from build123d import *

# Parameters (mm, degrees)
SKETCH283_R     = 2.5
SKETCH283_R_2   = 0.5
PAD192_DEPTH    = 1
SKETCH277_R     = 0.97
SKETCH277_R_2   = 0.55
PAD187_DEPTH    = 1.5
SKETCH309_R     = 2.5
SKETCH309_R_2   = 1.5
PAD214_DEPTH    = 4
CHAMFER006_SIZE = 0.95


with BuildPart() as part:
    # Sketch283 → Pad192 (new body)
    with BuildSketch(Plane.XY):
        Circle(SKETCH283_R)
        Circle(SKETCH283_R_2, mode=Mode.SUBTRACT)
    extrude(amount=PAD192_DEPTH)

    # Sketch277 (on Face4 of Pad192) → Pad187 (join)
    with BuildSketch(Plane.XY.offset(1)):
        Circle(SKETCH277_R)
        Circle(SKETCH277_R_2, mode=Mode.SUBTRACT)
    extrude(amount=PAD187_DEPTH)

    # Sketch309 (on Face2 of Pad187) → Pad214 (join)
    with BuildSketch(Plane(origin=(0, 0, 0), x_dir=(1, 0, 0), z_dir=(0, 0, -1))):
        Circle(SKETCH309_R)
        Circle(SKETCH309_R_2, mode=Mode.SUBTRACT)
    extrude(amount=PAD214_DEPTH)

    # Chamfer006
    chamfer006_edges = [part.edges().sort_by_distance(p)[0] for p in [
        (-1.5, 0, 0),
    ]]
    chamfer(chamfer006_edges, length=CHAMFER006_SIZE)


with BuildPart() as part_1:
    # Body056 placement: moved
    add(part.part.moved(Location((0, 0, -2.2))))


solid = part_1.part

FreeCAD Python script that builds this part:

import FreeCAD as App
import Part
import Sketcher
from FreeCAD import Vector


def edges_at(feature, points):
    """Names of the edges that pass closest to the given points."""
    edges = feature.Shape.Edges
    near = lambda p: min(range(len(edges)), key=lambda i: edges[i].distToShape(Part.Vertex(*p))[0])
    return sorted({f"Edge{near(p) + 1}" for p in points})

doc = App.newDocument("Part")
body = doc.addObject("PartDesign::Body", "Body")

sketch1 = body.newObject("Sketcher::SketchObject", "Sketch")
sketch1.AttachmentSupport = (doc.getObject("XY_Plane"), [""])
sketch1.MapMode = "FlatFace"
sketch1.addGeometry([
    Part.Circle(Vector(0, 0, 0), Vector(0, 0, 1), 2.5),
    Part.Circle(Vector(0, 0, 0), Vector(0, 0, 1), 0.5),
], False)
sketch1.addConstraint([
    Sketcher.Constraint("Coincident", 0, 3, -1, 1),
    Sketcher.Constraint("Coincident", 1, 3, -1, 1),
    Sketcher.Constraint("Diameter", 0, 5.0),
    Sketcher.Constraint("Diameter", 1, 1.0),
])
pad1 = body.newObject("PartDesign::Pad", "Pad")
pad1.Profile = sketch1
pad1.Length = 1

sketch2 = body.newObject("Sketcher::SketchObject", "Sketch001")
sketch2.AttachmentSupport = (doc.getObject("XY_Plane"), [""])
sketch2.MapMode = "FlatFace"
sketch2.AttachmentOffset = App.Placement(Vector(0, 0, 1), App.Rotation())
sketch2.addGeometry([
    Part.Circle(Vector(0, 0, 0), Vector(0, 0, 1), 0.97),
    Part.Circle(Vector(0, 0, 0), Vector(0, 0, 1), 0.55),
], False)
sketch2.addConstraint([
    Sketcher.Constraint("Coincident", 0, 3, -1, 1),
    Sketcher.Constraint("Coincident", 1, 3, -1, 1),
    Sketcher.Constraint("Diameter", 1, 1.1),
    Sketcher.Constraint("Diameter", 0, 1.94),
])
pad2 = body.newObject("PartDesign::Pad", "Pad001")
pad2.Profile = sketch2
pad2.Length = 1.5

sketch3 = body.newObject("Sketcher::SketchObject", "Sketch002")
sketch3.AttachmentSupport = (doc.getObject("XY_Plane"), [""])
sketch3.MapMode = "FlatFace"
sketch3.addGeometry([
    Part.Circle(Vector(0, 0, 0), Vector(0, 0, 1), 2.5),
    Part.Circle(Vector(0, 0, 0), Vector(0, 0, 1), 1.5),
], False)
sketch3.addConstraint([
    Sketcher.Constraint("Coincident", 0, 3, -1, 1),
    Sketcher.Constraint("Coincident", 1, 3, -1, 1),
    Sketcher.Constraint("Diameter", 0, 5.0),
    Sketcher.Constraint("Diameter", 1, 3.0),
])
pad3 = body.newObject("PartDesign::Pad", "Pad002")
pad3.Profile = sketch3
pad3.Length = 4
pad3.Reversed = True
doc.recompute()

chamfer = body.newObject("PartDesign::Chamfer", "Chamfer")
chamfer.Base = (pad3, edges_at(pad3, [(-1.5, 0, 0)]))
chamfer.Size = 0.95
body2 = doc.addObject("PartDesign::Body", "Body001")
doc.recompute()

body.Placement = App.Placement(Vector(0, 0, -2.2), App.Rotation(Vector(0, 0, 1), 0))
boolean = body2.newObject("PartDesign::Boolean", "Boolean")
boolean.Type = "Fuse"
boolean.addObjects([body])

doc.recompute()
